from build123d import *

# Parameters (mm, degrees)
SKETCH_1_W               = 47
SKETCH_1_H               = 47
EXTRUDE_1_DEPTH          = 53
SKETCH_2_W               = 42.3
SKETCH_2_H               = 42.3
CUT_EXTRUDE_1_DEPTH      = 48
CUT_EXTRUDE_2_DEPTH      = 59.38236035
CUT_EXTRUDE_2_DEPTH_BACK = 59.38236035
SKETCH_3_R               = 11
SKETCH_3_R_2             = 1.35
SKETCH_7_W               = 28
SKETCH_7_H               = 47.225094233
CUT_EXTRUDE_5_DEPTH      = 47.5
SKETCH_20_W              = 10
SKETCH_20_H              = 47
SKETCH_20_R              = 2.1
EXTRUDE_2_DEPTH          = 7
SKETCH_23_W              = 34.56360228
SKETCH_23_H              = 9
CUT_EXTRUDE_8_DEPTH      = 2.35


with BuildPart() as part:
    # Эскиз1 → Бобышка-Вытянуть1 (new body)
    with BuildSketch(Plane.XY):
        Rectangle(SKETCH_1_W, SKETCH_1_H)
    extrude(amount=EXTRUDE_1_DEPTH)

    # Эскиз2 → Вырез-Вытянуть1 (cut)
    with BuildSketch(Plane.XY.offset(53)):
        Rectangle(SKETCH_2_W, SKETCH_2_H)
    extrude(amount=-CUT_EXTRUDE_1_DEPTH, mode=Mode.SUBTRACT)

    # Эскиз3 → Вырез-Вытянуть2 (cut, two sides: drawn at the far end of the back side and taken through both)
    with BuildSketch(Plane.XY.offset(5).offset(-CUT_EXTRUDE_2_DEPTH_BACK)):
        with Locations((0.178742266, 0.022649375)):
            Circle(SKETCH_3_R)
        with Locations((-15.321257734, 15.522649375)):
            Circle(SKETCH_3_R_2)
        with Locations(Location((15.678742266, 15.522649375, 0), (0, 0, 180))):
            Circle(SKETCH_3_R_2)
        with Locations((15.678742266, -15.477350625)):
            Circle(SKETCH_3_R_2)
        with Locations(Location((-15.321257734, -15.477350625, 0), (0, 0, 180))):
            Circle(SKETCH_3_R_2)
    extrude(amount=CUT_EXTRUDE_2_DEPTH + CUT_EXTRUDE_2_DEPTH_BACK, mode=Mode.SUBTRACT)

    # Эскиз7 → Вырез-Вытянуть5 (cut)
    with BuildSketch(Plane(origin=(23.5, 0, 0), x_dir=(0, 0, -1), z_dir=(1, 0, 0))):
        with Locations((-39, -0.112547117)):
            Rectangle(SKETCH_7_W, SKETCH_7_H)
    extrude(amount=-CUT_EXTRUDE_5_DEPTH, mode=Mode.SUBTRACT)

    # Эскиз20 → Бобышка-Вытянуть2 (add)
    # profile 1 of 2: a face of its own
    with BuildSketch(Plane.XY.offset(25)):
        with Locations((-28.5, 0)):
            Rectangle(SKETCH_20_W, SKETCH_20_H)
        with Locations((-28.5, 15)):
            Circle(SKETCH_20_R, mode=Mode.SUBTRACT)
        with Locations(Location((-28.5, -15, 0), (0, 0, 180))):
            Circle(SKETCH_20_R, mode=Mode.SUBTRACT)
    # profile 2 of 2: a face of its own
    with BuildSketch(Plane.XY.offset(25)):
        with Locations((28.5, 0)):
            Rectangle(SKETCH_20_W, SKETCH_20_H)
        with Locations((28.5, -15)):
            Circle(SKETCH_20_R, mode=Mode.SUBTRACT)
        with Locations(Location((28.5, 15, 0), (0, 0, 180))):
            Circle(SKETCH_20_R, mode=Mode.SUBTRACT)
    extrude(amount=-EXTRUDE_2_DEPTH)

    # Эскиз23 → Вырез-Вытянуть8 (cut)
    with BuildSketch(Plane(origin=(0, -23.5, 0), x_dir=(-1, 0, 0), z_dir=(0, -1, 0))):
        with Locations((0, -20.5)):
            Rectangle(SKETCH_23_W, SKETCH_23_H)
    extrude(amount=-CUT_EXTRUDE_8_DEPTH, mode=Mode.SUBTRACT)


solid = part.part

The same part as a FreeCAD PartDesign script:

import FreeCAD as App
import Part
import Sketcher
from FreeCAD import Vector
Q = App.Units.Quantity

doc = App.newDocument("Part")
body = doc.addObject("PartDesign::Body", "Body")

# Sketch on XY plane
sketch1 = body.newObject("Sketcher::SketchObject", "Sketch")
sketch1.AttachmentSupport = (doc.getObject("XY_Plane"), [""])
sketch1.MapMode = "FlatFace"
sketch1.addGeometry([
    Part.LineSegment(Vector(-23.5, 23.5, 0), Vector(-23.5, -23.5, 0)),
    Part.LineSegment(Vector(-23.5, -23.5, 0), Vector(23.5, -23.5, 0)),
    Part.LineSegment(Vector(23.5, -23.5, 0), Vector(23.5, 23.5, 0)),
    Part.LineSegment(Vector(23.5, 23.5, 0), Vector(-23.5, 23.5, 0)),
], False)
sketch1.addConstraint([
    Sketcher.Constraint("Coincident", 0, 2, 1, 1),
    Sketcher.Constraint("Coincident", 1, 2, 2, 1),
    Sketcher.Constraint("Coincident", 2, 2, 3, 1),
    Sketcher.Constraint("Coincident", 3, 2, 0, 1),
    Sketcher.Constraint("Vertical", 0),
    Sketcher.Constraint("Horizontal", 1),
    Sketcher.Constraint("Vertical", 2),
    Sketcher.Constraint("Horizontal", 3),
    Sketcher.Constraint("Symmetric", 0, 2, 2, 2, -1, 1),
    Sketcher.Constraint("Equal", 3, 0),
    Sketcher.Constraint("DistanceX", 1, 1, 1, 2, Q("47 mm")),
])
pad1 = body.newObject("PartDesign::Pad", "Pad")
pad1.Profile = sketch1
pad1.Length = 53

# Sketch on XY plane
sketch2 = body.newObject("Sketcher::SketchObject", "Sketch001")
sketch2.AttachmentSupport = (doc.getObject("XY_Plane"), [""])
sketch2.MapMode = "FlatFace"
sketch2.AttachmentOffset = App.Placement(Vector(0, 0, 53), App.Rotation())
sketch2.addGeometry([
    Part.LineSegment(Vector(-21.15, 21.15, 0), Vector(-21.15, -21.15, 0)),
    Part.LineSegment(Vector(-21.15, -21.15, 0), Vector(21.15, -21.15, 0)),
    Part.LineSegment(Vector(21.15, -21.15, 0), Vector(21.15, 21.15, 0)),
    Part.LineSegment(Vector(21.15, 21.15, 0), Vector(-21.15, 21.15, 0)),
], False)
sketch2.addConstraint([
    Sketcher.Constraint("Coincident", 0, 2, 1, 1),
    Sketcher.Constraint("Coincident", 1, 2, 2, 1),
    Sketcher.Constraint("Coincident", 2, 2, 3, 1),
    Sketcher.Constraint("Coincident", 3, 2, 0, 1),
    Sketcher.Constraint("Vertical", 0),
    Sketcher.Constraint("Horizontal", 1),
    Sketcher.Constraint("Vertical", 2),
    Sketcher.Constraint("Horizontal", 3),
    Sketcher.Constraint("Symmetric", 0, 2, 2, 2, -1, 1),
    Sketcher.Constraint("Equal", 3, 0),
    Sketcher.Constraint("DistanceX", 1, 1, 1, 2, Q("42.3 mm")),
])
pocket1 = body.newObject("PartDesign::Pocket", "Pocket")
pocket1.Profile = sketch2
pocket1.Length = 48

# Sketch on XY plane
sketch3 = body.newObject("Sketcher::SketchObject", "Sketch002")
sketch3.AttachmentSupport = (doc.getObject("XY_Plane"), [""])
sketch3.MapMode = "FlatFace"
sketch3.AttachmentOffset = App.Placement(Vector(0, 0, 5), App.Rotation())
sketch3.addGeometry([
    Part.Circle(Vector(0.178742, 0.022649, 0), Vector(0, 0, 1), 11),  # 0
    Part.Circle(Vector(-15.321258, 15.522649, 0), Vector(0, 0, 1), 1.35),  # 1
    Part.Circle(Vector(15.678742, 15.522649, 0), Vector(0, 0, 1), 1.35),  # 2
    Part.Circle(Vector(15.678742, -15.477351, 0), Vector(0, 0, 1), 1.35),  # 3
    Part.Circle(Vector(-15.321258, -15.477351, 0), Vector(0, 0, 1), 1.35),  # 4
], False)
sketch3.addConstraint([
    Sketcher.Constraint("Equal", 1, 2),
    Sketcher.Constraint("Equal", 2, 3),
    Sketcher.Constraint("Equal", 3, 4),
    Sketcher.Constraint("Horizontal", 1, 3, 2, 3),
    Sketcher.Constraint("Horizontal", 3, 3, 4, 3),
    Sketcher.Constraint("Vertical", 2, 3, 3, 3),
    Sketcher.Constraint("Vertical", 1, 3, 4, 3),
    Sketcher.Constraint("Diameter", 0, Q("22 mm")),
    Sketcher.Constraint("Diameter", 1, Q("2.7 mm")),
    Sketcher.Constraint("DistanceX", 1, 3, 2, 3, Q("31 mm")),
    Sketcher.Constraint("DistanceY", 3, 3, 2, 3, Q("31 mm")),
    Sketcher.Constraint("DistanceX", 1, 3, 0, 3, Q("15.5 mm")),
    Sketcher.Constraint("DistanceY", 0, 3, 1, 3, Q("15.5 mm")),
    Sketcher.Constraint("DistanceY", -1, 1, 0, 3, Q("0.022649 mm")),
    Sketcher.Constraint("DistanceX", -1, 1, 0, 3, Q("0.178742 mm")),
])
pocket2 = body.newObject("PartDesign::Pocket", "Pocket001")
pocket2.Profile = sketch3
pocket2.Type = "ThroughAll"
pocket2.Midplane = True

# Sketch on YZ plane
sketch4 = body.newObject("Sketcher::SketchObject", "Sketch003")
sketch4.AttachmentSupport = (doc.getObject("YZ_Plane"), [""])
sketch4.MapMode = "FlatFace"
sketch4.AttachmentOffset = App.Placement(Vector(0, 0, 23.5), App.Rotation())
sketch4.addGeometry([
    Part.LineSegment(Vector(23.5, 53, 0), Vector(-23.725094, 53, 0)),
    Part.LineSegment(Vector(-23.725094, 53, 0), Vector(-23.725094, 25, 0)),
    Part.LineSegment(Vector(-23.725094, 25, 0), Vector(23.5, 25, 0)),
    Part.LineSegment(Vector(23.5, 25, 0), Vector(23.5, 53, 0)),
], False)
sketch4.addConstraint([
    Sketcher.Constraint("Coincident", 0, 2, 1, 1),
    Sketcher.Constraint("Coincident", 1, 2, 2, 1),
    Sketcher.Constraint("Coincident", 2, 2, 3, 1),
    Sketcher.Constraint("Coincident", 3, 2, 0, 1),
    Sketcher.Constraint("Horizontal", 0),
    Sketcher.Constraint("Vertical", 1),
    Sketcher.Constraint("Horizontal", 2),
    Sketcher.Constraint("Vertical", 3),
    Sketcher.Constraint("DistanceY", 1, 2, 1, 1, Q("28 mm")),
    Sketcher.Constraint("DistanceY", -1, 1, 0, 2, Q("53 mm")),
    Sketcher.Constraint("DistanceX", -1, 1, 2, 2, Q("23.5 mm")),
    Sketcher.Constraint("DistanceX", 0, 2, 0, 1, Q("47.225094 mm")),
])
pocket3 = body.newObject("PartDesign::Pocket", "Pocket002")
pocket3.Profile = sketch4
pocket3.Length = 47.5

# Sketch on XY plane
sketch5 = body.newObject("Sketcher::SketchObject", "Sketch004")
sketch5.AttachmentSupport = (doc.getObject("XY_Plane"), [""])
sketch5.MapMode = "FlatFace"
sketch5.AttachmentOffset = App.Placement(Vector(0, 0, 25), App.Rotation())
sketch5.addGeometry([
    Part.LineSegment(Vector(-33.5, 23.5, 0), Vector(-33.5, -23.5, 0)),  # 0
    Part.LineSegment(Vector(-33.5, -23.5, 0), Vector(-23.5, -23.5, 0)),  # 1
    Part.LineSegment(Vector(-23.5, -23.5, 0), Vector(-23.5, 23.5, 0)),  # 2
    Part.LineSegment(Vector(-23.5, 23.5, 0), Vector(-33.5, 23.5, 0)),  # 3
    Part.Circle(Vector(-28.5, -15, 0), Vector(0, 0, 1), 2.1),  # 4
    Part.Circle(Vector(-28.5, 15, 0), Vector(0, 0, 1), 2.1),  # 5
    Part.LineSegment(Vector(23.5, 23.5, 0), Vector(23.5, -23.5, 0)),  # 6
    Part.LineSegment(Vector(23.5, -23.5, 0), Vector(33.5, -23.5, 0)),  # 7
    Part.LineSegment(Vector(33.5, -23.5, 0), Vector(33.5, 23.5, 0)),  # 8
    Part.LineSegment(Vector(33.5, 23.5, 0), Vector(23.5, 23.5, 0)),  # 9
    Part.Circle(Vector(28.5, -15, 0), Vector(0, 0, 1), 2.1),  # 10
    Part.Circle(Vector(28.5, 15, 0), Vector(0, 0, 1), 2.1),  # 11
], False)
sketch5.addConstraint([
    Sketcher.Constraint("Coincident", 0, 2, 1, 1),
    Sketcher.Constraint("Coincident", 1, 2, 2, 1),
    Sketcher.Constraint("Coincident", 2, 2, 3, 1),
    Sketcher.Constraint("Coincident", 3, 2, 0, 1),
    Sketcher.Constraint("Coincident", 6, 2, 7, 1),
    Sketcher.Constraint("Coincident", 7, 2, 8, 1),
    Sketcher.Constraint("Coincident", 8, 2, 9, 1),
    Sketcher.Constraint("Coincident", 9, 2, 6, 1),
    Sketcher.Constraint("Vertical", 0),
    Sketcher.Constraint("Horizontal", 1),
    Sketcher.Constraint("Vertical", 2),
    Sketcher.Constraint("Horizontal", 3),
    Sketcher.Constraint("Vertical", 6),
    Sketcher.Constraint("Horizontal", 7),
    Sketcher.Constraint("Vertical", 8),
    Sketcher.Constraint("Horizontal", 9),
    Sketcher.Constraint("Equal", 4, 5),
    Sketcher.Constraint("Equal", 5, 10),
    Sketcher.Constraint("Equal", 10, 11),
    Sketcher.Constraint("Symmetric", 5, 3, 10, 3, -1, 1),
    Sketcher.Constraint("Symmetric", 4, 3, 11, 3, -1, 1),
    Sketcher.Constraint("Symmetric", 2, 2, 6, 2, -1, 1),
    Sketcher.Constraint("Symmetric", 0, 2, 8, 2, -1, 1),
    Sketcher.Constraint("Symmetric", 4, 3, 10, 3, -2),
    Sketcher.Constraint("Horizontal", 1, 2, 6, 2),
    Sketcher.Constraint("Diameter", 4, Q("4.2 mm")),
    Sketcher.Constraint("DistanceX", 1, 1, 1, 2, Q("10 mm")),
    Sketcher.Constraint("DistanceY", 0, 2, 0, 1, Q("47 mm")),
    Sketcher.Constraint("DistanceY", 4, 3, -1, 1, Q("15 mm")),
    Sketcher.Constraint("DistanceX", 4, 3, 10, 3, Q("57 mm")),
    Sketcher.Constraint("DistanceX", 0, 2, 4, 3, Q("5 mm")),
])
pad2 = body.newObject("PartDesign::Pad", "Pad001")
pad2.Profile = sketch5
pad2.Length = 7
pad2.Reversed = True

# Sketch on XZ plane
sketch6 = body.newObject("Sketcher::SketchObject", "Sketch005")
sketch6.AttachmentSupport = (doc.getObject("XZ_Plane"), [""])
sketch6.MapMode = "FlatFace"
sketch6.AttachmentOffset = App.Placement(Vector(0, 0, 23.5), App.Rotation())
sketch6.addGeometry([
    Part.LineSegment(Vector(17.281801, 16, 0), Vector(17.281801, 25, 0)),
    Part.LineSegment(Vector(17.281801, 25, 0), Vector(-17.281801, 25, 0)),
    Part.LineSegment(Vector(-17.281801, 25, 0), Vector(-17.281801, 16, 0)),
    Part.LineSegment(Vector(-17.281801, 16, 0), Vector(17.281801, 16, 0)),
], False)
sketch6.addConstraint([
    Sketcher.Constraint("Coincident", 0, 2, 1, 1),
    Sketcher.Constraint("Coincident", 1, 2, 2, 1),
    Sketcher.Constraint("Coincident", 2, 2, 3, 1),
    Sketcher.Constraint("Coincident", 3, 2, 0, 1),
    Sketcher.Constraint("Vertical", 0),
    Sketcher.Constraint("Horizontal", 1),
    Sketcher.Constraint("Vertical", 2),
    Sketcher.Constraint("Horizontal", 3),
    Sketcher.Constraint("DistanceY", 0, 1, 0, 2, Q("9 mm")),
    Sketcher.Constraint("DistanceY", -1, 1, 0, 2, Q("25 mm")),
    Sketcher.Constraint("DistanceX", -1, 1, 0, 2, Q("17.281801 mm")),
    Sketcher.Constraint("DistanceX", 1, 2, -1, 1, Q("17.281801 mm")),
])
pocket4 = body.newObject("PartDesign::Pocket", "Pocket003")
pocket4.Profile = sketch6
pocket4.Length = 2.35

doc.recompute()
